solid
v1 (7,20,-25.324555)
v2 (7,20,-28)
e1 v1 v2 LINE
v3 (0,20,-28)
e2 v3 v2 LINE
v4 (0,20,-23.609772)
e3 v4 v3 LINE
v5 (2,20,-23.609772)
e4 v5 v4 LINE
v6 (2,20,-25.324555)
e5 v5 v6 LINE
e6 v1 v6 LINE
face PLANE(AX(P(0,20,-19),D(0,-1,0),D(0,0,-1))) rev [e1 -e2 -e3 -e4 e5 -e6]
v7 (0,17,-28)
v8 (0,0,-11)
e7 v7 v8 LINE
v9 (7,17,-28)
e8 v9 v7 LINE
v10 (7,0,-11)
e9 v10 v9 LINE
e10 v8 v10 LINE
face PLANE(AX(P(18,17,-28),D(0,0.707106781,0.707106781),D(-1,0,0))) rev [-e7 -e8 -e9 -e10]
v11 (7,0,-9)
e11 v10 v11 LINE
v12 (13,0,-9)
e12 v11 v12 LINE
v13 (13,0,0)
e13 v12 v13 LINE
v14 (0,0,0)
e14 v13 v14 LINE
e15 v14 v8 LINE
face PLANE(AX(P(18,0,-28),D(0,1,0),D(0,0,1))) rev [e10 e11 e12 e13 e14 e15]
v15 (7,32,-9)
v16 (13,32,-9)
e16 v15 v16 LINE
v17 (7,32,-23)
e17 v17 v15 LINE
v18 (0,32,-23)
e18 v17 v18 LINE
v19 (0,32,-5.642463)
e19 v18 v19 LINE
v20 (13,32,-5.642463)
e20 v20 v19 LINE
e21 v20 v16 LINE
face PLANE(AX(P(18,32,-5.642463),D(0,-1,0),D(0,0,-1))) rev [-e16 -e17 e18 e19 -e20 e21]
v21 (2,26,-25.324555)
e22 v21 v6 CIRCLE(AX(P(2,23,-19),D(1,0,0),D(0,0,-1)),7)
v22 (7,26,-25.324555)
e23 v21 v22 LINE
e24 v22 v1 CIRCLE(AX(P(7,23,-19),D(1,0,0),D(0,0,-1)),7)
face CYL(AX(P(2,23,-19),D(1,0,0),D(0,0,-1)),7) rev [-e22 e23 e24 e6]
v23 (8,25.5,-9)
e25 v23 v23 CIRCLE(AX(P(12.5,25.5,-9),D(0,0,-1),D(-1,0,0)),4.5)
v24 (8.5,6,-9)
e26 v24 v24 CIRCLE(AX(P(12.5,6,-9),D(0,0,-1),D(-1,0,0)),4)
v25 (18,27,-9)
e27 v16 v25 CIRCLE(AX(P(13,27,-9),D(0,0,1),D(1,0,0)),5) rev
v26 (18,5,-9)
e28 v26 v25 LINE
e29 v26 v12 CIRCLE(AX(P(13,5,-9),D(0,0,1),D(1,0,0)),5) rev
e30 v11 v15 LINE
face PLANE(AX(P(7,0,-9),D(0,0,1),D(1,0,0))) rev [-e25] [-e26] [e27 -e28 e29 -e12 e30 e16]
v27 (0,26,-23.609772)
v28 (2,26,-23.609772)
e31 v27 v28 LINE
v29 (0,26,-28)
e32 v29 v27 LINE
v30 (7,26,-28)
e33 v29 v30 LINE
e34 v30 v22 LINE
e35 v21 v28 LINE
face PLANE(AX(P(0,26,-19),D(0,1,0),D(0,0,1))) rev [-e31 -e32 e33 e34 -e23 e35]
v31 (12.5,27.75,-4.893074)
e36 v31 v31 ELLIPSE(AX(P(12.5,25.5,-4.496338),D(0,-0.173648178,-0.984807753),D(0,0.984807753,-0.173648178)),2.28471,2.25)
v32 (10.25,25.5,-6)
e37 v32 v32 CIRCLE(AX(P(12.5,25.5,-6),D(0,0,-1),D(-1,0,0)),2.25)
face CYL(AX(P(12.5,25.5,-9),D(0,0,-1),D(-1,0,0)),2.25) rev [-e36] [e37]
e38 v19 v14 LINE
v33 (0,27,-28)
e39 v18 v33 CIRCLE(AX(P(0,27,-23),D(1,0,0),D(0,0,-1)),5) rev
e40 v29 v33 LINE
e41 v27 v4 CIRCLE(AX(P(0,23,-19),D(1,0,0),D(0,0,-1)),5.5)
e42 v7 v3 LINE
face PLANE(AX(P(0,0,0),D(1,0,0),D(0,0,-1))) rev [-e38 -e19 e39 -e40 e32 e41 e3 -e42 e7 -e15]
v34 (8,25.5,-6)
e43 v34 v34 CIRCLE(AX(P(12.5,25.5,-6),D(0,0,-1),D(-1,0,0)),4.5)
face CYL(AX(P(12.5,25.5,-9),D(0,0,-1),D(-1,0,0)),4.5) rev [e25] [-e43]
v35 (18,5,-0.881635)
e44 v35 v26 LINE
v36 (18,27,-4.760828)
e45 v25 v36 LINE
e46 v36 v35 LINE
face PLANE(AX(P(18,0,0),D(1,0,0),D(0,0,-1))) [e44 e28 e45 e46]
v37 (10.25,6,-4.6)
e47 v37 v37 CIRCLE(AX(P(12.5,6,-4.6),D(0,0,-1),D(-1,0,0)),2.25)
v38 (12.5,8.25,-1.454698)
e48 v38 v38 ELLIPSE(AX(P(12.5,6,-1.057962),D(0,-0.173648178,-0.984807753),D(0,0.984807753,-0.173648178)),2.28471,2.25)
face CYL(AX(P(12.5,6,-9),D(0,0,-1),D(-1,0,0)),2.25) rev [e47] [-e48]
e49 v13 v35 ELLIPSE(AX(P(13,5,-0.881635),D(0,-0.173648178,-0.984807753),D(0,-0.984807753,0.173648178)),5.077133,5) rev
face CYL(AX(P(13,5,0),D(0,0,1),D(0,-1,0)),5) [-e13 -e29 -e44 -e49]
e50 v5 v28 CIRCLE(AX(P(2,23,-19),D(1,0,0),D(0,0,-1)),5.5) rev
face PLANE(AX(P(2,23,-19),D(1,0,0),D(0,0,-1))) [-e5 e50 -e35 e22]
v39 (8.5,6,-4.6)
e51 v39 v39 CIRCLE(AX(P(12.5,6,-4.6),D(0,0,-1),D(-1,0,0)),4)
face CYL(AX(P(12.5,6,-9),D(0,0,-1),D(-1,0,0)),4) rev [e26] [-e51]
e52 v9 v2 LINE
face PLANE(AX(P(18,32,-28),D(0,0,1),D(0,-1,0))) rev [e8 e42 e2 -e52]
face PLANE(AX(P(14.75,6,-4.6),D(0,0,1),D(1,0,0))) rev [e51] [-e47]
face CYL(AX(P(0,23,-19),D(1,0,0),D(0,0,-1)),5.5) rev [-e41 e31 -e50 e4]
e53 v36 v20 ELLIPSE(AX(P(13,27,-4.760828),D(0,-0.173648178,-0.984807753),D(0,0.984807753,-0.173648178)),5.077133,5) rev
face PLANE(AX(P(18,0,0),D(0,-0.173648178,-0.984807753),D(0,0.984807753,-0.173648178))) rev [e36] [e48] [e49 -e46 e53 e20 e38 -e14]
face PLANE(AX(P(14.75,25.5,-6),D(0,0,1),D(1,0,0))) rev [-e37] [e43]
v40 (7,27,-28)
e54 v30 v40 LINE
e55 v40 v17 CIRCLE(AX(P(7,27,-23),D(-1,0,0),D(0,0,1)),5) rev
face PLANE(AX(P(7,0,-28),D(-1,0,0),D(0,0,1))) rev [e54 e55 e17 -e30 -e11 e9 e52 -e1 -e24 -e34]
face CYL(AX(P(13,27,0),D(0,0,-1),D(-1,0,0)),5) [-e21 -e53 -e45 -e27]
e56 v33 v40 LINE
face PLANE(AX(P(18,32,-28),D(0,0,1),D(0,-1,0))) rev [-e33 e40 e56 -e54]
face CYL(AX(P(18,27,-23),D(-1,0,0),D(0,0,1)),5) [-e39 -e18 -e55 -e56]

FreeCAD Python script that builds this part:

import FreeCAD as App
import Part
import Sketcher

V = App.Vector
Q = App.Units.Quantity


def edges_at(feature, points):
    """Names of the edges that pass closest to the given points."""
    edges = feature.Shape.Edges
    near = lambda p: min(range(len(edges)), key=lambda i: edges[i].distToShape(Part.Vertex(*p))[0])
    return sorted({f"Edge{near(p) + 1}" for p in points})


def add_polygon(sketch, points):
    """Adds a closed chain of lines whose ends are joined by coincident constraints."""
    first, n = sketch.GeometryCount, len(points)
    for a, b in zip(points, points[1:] + points[:1]):
        sketch.addGeometry(Part.LineSegment(App.Vector(*a, 0), App.Vector(*b, 0)), False)
    for i in range(n):
        sketch.addConstraint(Sketcher.Constraint("Coincident", first + i, 2, first + (i + 1) % n, 1))

doc = App.newDocument("Part")
body = doc.addObject("PartDesign::Body", "Body")

sketch1 = body.newObject("Sketcher::SketchObject", "Sketch")
sketch1.AttachmentSupport = (doc.getObject("YZ_Plane"), [""])
sketch1.MapMode = "FlatFace"
add_polygon(sketch1, [(32, -6), (0, 0), (0, -28), (32, -28)])
sketch1.addConstraint(Sketcher.Constraint("Vertical", 1))
sketch1.addConstraint(Sketcher.Constraint("Horizontal", 2))
sketch1.addConstraint(Sketcher.Constraint("Vertical", 3))
sketch1.addConstraint(Sketcher.Constraint("Coincident", 0, 2, -1, 1))
sketch1.addConstraint(Sketcher.Constraint("DistanceX", 2, 1, 2, 2, Q("32 mm")))
sketch1.addConstraint(Sketcher.Constraint("DistanceY", 1, 2, 1, 1, Q("28 mm")))
sketch1.addConstraint(Sketcher.Constraint("Angle", 0, Q("170 deg")))
pad1 = body.newObject("PartDesign::Pad", "Pad")
pad1.Profile = sketch1
pad1.Length = 18

sketch2 = body.newObject("Sketcher::SketchObject", "Sketch001")
sketch2.AttachmentSupport = (doc.getObject("XZ_Plane"), [""])
sketch2.MapMode = "FlatFace"
sketch2.AttachmentOffset = App.Placement(V(0, 0, -32), App.Rotation())
add_polygon(sketch2, [(7, -28), (7, -9), (18, -9), (18, -28)])
sketch2.addConstraint(Sketcher.Constraint("Vertical", 0))
sketch2.addConstraint(Sketcher.Constraint("Horizontal", 1))
sketch2.addConstraint(Sketcher.Constraint("Vertical", 2))
sketch2.addConstraint(Sketcher.Constraint("Horizontal", 3))
sketch2.addConstraint(Sketcher.Constraint("DistanceX", 1, 1, 1, 2, Q("11 mm")))
sketch2.addConstraint(Sketcher.Constraint("DistanceY", 0, 1, 0, 2, Q("19 mm")))
sketch2.addConstraint(Sketcher.Constraint("DistanceX", -1, 1, 0, 2, Q("7 mm")))
sketch2.addConstraint(Sketcher.Constraint("DistanceY", 0, 2, -1, 1, Q("9 mm")))
pocket1 = body.newObject("PartDesign::Pocket", "Pocket")
pocket1.Profile = sketch2
pocket1.Type = "ThroughAll"
pocket1.Reversed = True

sketch3 = body.newObject("Sketcher::SketchObject", "Sketch002")
sketch3.AttachmentSupport = (doc.getObject("XY_Plane"), [""])
sketch3.MapMode = "FlatFace"
sketch3.AttachmentOffset = App.Placement(V(0, 0, -9), App.Rotation())
sketch3.addGeometry(Part.Circle(V(12.5, 6, 0), V(0, 0, 1), 2.2), False)
sketch3.addConstraint(Sketcher.Constraint("Diameter", 0, Q("4.5 mm")))
sketch3.addConstraint(Sketcher.Constraint("DistanceY", -1, 1, 0, 3, Q("6 mm")))
sketch3.addConstraint(Sketcher.Constraint("DistanceX", -1, 1, 0, 3, Q("12.5 mm")))
doc.recompute()
hole = body.newObject("PartDesign::Hole", "Hole")
hole.Profile = sketch3
hole.ThreadType = "None"
hole.Diameter = 4.5
hole.DepthType = "ThroughAll"
hole.HoleCutType = "Counterbore"
hole.HoleCutDiameter = 8
hole.HoleCutDepth = 4.4
hole.Reversed = True

sketch4 = body.newObject("Sketcher::SketchObject", "Sketch003")
sketch4.AttachmentSupport = (doc.getObject("XY_Plane"), [""])
sketch4.MapMode = "FlatFace"
sketch4.AttachmentOffset = App.Placement(V(0, 0, -9), App.Rotation())
sketch4.addGeometry(Part.Circle(V(12.5, 25.5, 0), V(0, 0, 1), 2.2), False)
sketch4.addConstraint(Sketcher.Constraint("Diameter", 0, Q("4.5 mm")))
sketch4.addConstraint(Sketcher.Constraint("DistanceX", -1, 1, 0, 3, Q("12.5 mm")))
sketch4.addConstraint(Sketcher.Constraint("DistanceY", -1, 1, 0, 3, Q("25.5 mm")))
doc.recompute()
hole2 = body.newObject("PartDesign::Hole", "Hole001")
hole2.Profile = sketch4
hole2.ThreadType = "None"
hole2.Diameter = 4.5
hole2.DepthType = "ThroughAll"
hole2.HoleCutType = "Counterbore"
hole2.HoleCutDiameter = 9
hole2.HoleCutDepth = 3
hole2.Reversed = True

sketch5 = body.newObject("Sketcher::SketchObject", "Sketch004")
sketch5.AttachmentSupport = (doc.getObject("YZ_Plane"), [""])
sketch5.MapMode = "FlatFace"
sketch5.AttachmentOffset = App.Placement(V(0, 0, 7), App.Rotation())
sketch5.addGeometry(Part.Circle(V(23, -19, 0), V(0, 0, 1), 6), False)
sketch5.addConstraint(Sketcher.Constraint("Diameter", 0, Q("11 mm")))
sketch5.addConstraint(Sketcher.Constraint("DistanceX", -1, 1, 0, 3, Q("23 mm")))
sketch5.addConstraint(Sketcher.Constraint("DistanceY", 0, 3, -1, 1, Q("19 mm")))
pocket2 = body.newObject("PartDesign::Pocket", "Pocket001")
pocket2.Profile = sketch5
pocket2.Type = "ThroughAll"

sketch6 = body.newObject("Sketcher::SketchObject", "Sketch005")
sketch6.AttachmentSupport = (doc.getObject("YZ_Plane"), [""])
sketch6.MapMode = "FlatFace"
sketch6.AttachmentOffset = App.Placement(V(0, 0, 7), App.Rotation())
sketch6.addGeometry(Part.Circle(V(23, -19, 0), V(0, 0, 1), 7), False)
sketch6.addConstraint(Sketcher.Constraint("Diameter", 0, Q("14 mm")))
sketch6.addConstraint(Sketcher.Constraint("DistanceX", -1, 1, 0, 3, Q("23 mm")))
sketch6.addConstraint(Sketcher.Constraint("DistanceY", 0, 3, -1, 1, Q("19 mm")))
pocket3 = body.newObject("PartDesign::Pocket", "Pocket002")
pocket3.Profile = sketch6
pocket3.Length = 5

sketch7 = body.newObject("Sketcher::SketchObject", "Sketch006")
sketch7.AttachmentSupport = (doc.getObject("YZ_Plane"), [""])
sketch7.MapMode = "FlatFace"
sketch7.AttachmentOffset = App.Placement(V(0, 0, 7), App.Rotation())
add_polygon(sketch7, [(26, -19), (20, -19), (20, -28), (26, -28)])
sketch7.addConstraint(Sketcher.Constraint("Horizontal", 0))
sketch7.addConstraint(Sketcher.Constraint("Vertical", 1))
sketch7.addConstraint(Sketcher.Constraint("Horizontal", 2))
sketch7.addConstraint(Sketcher.Constraint("Vertical", 3))
sketch7.addConstraint(Sketcher.Constraint("DistanceX", 0, 2, 0, 1, Q("6 mm")))
sketch7.addConstraint(Sketcher.Constraint("DistanceY", 1, 2, 1, 1, Q("9 mm")))
sketch7.addConstraint(Sketcher.Constraint("DistanceX", -1, 1, 0, 2, Q("20 mm")))
sketch7.addConstraint(Sketcher.Constraint("DistanceY", 0, 2, -1, 1, Q("19 mm")))
pocket4 = body.newObject("PartDesign::Pocket", "Pocket003")
pocket4.Profile = sketch7
pocket4.Type = "ThroughAll"
doc.recompute()

chamfer = body.newObject("PartDesign::Chamfer", "Chamfer")
chamfer.Base = (pocket4, edges_at(pocket4, [(3.5, 0, -28)]))
chamfer.Size = 17
doc.recompute()

fillet = body.newObject("PartDesign::Fillet", "Fillet")
fillet.Base = (chamfer, edges_at(chamfer, [(3.5, 32, -28)]))
fillet.Radius = 5
doc.recompute()

fillet2 = body.newObject("PartDesign::Fillet", "Fillet001")
fillet2.Base = (fillet, edges_at(fillet, [(18, 32, -7.321), (18, 0, -4.5)]))
fillet2.Radius = 5

doc.recompute()
